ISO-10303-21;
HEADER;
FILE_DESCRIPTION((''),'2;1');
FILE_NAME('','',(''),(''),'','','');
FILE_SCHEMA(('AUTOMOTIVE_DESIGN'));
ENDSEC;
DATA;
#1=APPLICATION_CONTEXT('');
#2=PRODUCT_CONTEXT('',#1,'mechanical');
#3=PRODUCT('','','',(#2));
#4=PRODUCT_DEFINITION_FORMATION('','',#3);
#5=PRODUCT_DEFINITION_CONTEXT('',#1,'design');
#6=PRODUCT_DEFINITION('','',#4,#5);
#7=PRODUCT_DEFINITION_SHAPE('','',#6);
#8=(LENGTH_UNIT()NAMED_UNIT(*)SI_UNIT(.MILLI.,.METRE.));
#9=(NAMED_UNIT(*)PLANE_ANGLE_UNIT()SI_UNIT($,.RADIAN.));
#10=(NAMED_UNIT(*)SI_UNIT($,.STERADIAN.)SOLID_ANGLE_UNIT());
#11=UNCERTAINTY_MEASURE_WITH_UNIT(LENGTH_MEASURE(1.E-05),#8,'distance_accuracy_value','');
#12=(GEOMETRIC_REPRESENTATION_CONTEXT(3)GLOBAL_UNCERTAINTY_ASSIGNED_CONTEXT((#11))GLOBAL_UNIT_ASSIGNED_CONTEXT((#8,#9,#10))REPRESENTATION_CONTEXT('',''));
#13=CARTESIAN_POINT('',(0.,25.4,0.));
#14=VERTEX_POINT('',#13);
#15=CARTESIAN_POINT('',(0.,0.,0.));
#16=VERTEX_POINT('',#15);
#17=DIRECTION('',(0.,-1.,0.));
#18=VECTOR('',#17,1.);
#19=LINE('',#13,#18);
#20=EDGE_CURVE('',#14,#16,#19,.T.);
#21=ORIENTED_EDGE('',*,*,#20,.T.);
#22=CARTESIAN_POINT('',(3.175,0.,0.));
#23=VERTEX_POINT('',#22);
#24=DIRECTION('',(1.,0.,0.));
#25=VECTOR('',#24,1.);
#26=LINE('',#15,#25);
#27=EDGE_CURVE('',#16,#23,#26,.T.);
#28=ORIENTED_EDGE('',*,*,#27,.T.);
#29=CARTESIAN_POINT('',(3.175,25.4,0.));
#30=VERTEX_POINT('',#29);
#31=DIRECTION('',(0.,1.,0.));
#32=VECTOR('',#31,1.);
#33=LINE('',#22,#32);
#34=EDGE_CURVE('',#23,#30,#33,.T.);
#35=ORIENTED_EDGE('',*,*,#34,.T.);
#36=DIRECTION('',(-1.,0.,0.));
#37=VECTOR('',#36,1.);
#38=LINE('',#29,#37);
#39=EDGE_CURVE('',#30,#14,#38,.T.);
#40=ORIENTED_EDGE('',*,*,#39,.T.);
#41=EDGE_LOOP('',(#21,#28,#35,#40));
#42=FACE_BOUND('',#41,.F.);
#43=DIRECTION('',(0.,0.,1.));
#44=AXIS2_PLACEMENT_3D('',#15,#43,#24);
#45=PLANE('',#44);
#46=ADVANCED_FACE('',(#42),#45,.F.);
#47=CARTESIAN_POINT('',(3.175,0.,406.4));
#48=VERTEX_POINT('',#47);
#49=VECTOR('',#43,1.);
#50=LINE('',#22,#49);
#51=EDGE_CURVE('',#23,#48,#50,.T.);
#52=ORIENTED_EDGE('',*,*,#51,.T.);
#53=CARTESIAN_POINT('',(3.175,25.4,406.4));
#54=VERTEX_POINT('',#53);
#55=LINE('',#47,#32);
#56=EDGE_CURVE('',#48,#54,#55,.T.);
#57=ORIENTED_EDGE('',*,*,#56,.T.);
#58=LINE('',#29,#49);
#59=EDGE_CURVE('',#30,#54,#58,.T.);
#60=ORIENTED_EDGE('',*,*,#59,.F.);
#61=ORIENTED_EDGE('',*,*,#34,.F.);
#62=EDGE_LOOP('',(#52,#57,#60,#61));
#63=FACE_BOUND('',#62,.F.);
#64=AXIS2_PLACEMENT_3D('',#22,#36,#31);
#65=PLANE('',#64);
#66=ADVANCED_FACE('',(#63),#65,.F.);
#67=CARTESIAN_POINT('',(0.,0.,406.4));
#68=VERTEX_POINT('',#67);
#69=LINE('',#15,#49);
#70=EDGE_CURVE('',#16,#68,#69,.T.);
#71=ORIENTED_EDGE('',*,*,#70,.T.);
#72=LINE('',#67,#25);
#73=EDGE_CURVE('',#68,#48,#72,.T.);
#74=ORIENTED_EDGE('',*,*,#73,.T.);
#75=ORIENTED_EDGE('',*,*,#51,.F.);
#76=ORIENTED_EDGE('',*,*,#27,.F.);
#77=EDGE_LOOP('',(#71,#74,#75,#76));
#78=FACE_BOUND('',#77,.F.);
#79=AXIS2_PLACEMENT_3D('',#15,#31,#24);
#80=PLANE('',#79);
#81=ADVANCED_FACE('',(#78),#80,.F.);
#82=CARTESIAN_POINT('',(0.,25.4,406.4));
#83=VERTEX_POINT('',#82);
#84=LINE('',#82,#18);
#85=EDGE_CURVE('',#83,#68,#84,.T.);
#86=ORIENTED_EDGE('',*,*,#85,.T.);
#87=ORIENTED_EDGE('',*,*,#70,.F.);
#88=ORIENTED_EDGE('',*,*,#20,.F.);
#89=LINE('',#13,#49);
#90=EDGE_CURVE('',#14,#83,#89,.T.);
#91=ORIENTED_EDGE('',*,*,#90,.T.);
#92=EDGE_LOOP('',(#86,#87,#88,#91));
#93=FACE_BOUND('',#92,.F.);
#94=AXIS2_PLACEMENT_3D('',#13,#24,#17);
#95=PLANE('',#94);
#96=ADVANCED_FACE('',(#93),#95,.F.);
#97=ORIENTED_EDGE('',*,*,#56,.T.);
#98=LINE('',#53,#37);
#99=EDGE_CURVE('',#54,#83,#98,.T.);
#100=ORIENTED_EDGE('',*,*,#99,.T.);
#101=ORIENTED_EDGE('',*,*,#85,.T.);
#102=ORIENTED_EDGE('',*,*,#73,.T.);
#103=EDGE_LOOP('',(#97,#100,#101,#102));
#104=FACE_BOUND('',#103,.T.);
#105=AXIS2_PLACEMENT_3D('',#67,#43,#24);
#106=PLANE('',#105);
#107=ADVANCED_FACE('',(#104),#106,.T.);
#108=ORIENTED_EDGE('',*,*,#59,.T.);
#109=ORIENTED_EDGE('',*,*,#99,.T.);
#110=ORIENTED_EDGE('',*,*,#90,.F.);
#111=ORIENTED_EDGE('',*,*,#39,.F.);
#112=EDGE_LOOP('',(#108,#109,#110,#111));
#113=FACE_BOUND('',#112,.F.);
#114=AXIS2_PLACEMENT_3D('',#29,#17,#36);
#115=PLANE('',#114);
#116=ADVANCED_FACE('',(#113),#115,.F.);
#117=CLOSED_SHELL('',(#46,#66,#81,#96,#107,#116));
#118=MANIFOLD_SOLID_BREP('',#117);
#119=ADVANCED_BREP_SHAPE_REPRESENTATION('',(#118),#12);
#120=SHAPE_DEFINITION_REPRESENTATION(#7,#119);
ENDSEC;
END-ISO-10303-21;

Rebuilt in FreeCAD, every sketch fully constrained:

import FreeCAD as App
import Part
import Sketcher
Q = App.Units.Quantity

doc = App.newDocument("Part")
body = doc.addObject("PartDesign::Body", "Body")

sketch1 = doc.addObject("Sketcher::SketchObject", "Sketch")
body.addObject(sketch1)
sketch1.AttachmentSupport = (doc.XY_Plane, [""])
sketch1.MapMode = "FlatFace"
sketch1.addGeometry([
    Part.LineSegment(App.Vector(0, 25.4, 0), App.Vector(0, 0, 0)),
    Part.LineSegment(App.Vector(0, 0, 0), App.Vector(3.2, 0, 0)),
    Part.LineSegment(App.Vector(3.2, 0, 0), App.Vector(3.2, 25.4, 0)),
    Part.LineSegment(App.Vector(3.2, 25.4, 0), App.Vector(0, 25.4, 0)),
], False)
sketch1.addConstraint([
    Sketcher.Constraint("Coincident", 0, 2, 1, 1),
    Sketcher.Constraint("Coincident", 1, 2, 2, 1),
    Sketcher.Constraint("Coincident", 2, 2, 3, 1),
    Sketcher.Constraint("Coincident", 3, 2, 0, 1),
    Sketcher.Constraint("Vertical", 0),
    Sketcher.Constraint("Horizontal", 1),
    Sketcher.Constraint("Vertical", 2),
    Sketcher.Constraint("Horizontal", 3),
    Sketcher.Constraint("Coincident", 0, 2, -1, 1),
    Sketcher.Constraint("DistanceY", 0, 2, 0, 1, Q("1 in")),
    Sketcher.Constraint("DistanceX", 1, 1, 1, 2, Q("0.125 in")),
])
pad1 = doc.addObject("PartDesign::Pad", "Pad")
body.addObject(pad1)
pad1.Profile = sketch1
pad1.Length = Q("16 in")

doc.recompute()
